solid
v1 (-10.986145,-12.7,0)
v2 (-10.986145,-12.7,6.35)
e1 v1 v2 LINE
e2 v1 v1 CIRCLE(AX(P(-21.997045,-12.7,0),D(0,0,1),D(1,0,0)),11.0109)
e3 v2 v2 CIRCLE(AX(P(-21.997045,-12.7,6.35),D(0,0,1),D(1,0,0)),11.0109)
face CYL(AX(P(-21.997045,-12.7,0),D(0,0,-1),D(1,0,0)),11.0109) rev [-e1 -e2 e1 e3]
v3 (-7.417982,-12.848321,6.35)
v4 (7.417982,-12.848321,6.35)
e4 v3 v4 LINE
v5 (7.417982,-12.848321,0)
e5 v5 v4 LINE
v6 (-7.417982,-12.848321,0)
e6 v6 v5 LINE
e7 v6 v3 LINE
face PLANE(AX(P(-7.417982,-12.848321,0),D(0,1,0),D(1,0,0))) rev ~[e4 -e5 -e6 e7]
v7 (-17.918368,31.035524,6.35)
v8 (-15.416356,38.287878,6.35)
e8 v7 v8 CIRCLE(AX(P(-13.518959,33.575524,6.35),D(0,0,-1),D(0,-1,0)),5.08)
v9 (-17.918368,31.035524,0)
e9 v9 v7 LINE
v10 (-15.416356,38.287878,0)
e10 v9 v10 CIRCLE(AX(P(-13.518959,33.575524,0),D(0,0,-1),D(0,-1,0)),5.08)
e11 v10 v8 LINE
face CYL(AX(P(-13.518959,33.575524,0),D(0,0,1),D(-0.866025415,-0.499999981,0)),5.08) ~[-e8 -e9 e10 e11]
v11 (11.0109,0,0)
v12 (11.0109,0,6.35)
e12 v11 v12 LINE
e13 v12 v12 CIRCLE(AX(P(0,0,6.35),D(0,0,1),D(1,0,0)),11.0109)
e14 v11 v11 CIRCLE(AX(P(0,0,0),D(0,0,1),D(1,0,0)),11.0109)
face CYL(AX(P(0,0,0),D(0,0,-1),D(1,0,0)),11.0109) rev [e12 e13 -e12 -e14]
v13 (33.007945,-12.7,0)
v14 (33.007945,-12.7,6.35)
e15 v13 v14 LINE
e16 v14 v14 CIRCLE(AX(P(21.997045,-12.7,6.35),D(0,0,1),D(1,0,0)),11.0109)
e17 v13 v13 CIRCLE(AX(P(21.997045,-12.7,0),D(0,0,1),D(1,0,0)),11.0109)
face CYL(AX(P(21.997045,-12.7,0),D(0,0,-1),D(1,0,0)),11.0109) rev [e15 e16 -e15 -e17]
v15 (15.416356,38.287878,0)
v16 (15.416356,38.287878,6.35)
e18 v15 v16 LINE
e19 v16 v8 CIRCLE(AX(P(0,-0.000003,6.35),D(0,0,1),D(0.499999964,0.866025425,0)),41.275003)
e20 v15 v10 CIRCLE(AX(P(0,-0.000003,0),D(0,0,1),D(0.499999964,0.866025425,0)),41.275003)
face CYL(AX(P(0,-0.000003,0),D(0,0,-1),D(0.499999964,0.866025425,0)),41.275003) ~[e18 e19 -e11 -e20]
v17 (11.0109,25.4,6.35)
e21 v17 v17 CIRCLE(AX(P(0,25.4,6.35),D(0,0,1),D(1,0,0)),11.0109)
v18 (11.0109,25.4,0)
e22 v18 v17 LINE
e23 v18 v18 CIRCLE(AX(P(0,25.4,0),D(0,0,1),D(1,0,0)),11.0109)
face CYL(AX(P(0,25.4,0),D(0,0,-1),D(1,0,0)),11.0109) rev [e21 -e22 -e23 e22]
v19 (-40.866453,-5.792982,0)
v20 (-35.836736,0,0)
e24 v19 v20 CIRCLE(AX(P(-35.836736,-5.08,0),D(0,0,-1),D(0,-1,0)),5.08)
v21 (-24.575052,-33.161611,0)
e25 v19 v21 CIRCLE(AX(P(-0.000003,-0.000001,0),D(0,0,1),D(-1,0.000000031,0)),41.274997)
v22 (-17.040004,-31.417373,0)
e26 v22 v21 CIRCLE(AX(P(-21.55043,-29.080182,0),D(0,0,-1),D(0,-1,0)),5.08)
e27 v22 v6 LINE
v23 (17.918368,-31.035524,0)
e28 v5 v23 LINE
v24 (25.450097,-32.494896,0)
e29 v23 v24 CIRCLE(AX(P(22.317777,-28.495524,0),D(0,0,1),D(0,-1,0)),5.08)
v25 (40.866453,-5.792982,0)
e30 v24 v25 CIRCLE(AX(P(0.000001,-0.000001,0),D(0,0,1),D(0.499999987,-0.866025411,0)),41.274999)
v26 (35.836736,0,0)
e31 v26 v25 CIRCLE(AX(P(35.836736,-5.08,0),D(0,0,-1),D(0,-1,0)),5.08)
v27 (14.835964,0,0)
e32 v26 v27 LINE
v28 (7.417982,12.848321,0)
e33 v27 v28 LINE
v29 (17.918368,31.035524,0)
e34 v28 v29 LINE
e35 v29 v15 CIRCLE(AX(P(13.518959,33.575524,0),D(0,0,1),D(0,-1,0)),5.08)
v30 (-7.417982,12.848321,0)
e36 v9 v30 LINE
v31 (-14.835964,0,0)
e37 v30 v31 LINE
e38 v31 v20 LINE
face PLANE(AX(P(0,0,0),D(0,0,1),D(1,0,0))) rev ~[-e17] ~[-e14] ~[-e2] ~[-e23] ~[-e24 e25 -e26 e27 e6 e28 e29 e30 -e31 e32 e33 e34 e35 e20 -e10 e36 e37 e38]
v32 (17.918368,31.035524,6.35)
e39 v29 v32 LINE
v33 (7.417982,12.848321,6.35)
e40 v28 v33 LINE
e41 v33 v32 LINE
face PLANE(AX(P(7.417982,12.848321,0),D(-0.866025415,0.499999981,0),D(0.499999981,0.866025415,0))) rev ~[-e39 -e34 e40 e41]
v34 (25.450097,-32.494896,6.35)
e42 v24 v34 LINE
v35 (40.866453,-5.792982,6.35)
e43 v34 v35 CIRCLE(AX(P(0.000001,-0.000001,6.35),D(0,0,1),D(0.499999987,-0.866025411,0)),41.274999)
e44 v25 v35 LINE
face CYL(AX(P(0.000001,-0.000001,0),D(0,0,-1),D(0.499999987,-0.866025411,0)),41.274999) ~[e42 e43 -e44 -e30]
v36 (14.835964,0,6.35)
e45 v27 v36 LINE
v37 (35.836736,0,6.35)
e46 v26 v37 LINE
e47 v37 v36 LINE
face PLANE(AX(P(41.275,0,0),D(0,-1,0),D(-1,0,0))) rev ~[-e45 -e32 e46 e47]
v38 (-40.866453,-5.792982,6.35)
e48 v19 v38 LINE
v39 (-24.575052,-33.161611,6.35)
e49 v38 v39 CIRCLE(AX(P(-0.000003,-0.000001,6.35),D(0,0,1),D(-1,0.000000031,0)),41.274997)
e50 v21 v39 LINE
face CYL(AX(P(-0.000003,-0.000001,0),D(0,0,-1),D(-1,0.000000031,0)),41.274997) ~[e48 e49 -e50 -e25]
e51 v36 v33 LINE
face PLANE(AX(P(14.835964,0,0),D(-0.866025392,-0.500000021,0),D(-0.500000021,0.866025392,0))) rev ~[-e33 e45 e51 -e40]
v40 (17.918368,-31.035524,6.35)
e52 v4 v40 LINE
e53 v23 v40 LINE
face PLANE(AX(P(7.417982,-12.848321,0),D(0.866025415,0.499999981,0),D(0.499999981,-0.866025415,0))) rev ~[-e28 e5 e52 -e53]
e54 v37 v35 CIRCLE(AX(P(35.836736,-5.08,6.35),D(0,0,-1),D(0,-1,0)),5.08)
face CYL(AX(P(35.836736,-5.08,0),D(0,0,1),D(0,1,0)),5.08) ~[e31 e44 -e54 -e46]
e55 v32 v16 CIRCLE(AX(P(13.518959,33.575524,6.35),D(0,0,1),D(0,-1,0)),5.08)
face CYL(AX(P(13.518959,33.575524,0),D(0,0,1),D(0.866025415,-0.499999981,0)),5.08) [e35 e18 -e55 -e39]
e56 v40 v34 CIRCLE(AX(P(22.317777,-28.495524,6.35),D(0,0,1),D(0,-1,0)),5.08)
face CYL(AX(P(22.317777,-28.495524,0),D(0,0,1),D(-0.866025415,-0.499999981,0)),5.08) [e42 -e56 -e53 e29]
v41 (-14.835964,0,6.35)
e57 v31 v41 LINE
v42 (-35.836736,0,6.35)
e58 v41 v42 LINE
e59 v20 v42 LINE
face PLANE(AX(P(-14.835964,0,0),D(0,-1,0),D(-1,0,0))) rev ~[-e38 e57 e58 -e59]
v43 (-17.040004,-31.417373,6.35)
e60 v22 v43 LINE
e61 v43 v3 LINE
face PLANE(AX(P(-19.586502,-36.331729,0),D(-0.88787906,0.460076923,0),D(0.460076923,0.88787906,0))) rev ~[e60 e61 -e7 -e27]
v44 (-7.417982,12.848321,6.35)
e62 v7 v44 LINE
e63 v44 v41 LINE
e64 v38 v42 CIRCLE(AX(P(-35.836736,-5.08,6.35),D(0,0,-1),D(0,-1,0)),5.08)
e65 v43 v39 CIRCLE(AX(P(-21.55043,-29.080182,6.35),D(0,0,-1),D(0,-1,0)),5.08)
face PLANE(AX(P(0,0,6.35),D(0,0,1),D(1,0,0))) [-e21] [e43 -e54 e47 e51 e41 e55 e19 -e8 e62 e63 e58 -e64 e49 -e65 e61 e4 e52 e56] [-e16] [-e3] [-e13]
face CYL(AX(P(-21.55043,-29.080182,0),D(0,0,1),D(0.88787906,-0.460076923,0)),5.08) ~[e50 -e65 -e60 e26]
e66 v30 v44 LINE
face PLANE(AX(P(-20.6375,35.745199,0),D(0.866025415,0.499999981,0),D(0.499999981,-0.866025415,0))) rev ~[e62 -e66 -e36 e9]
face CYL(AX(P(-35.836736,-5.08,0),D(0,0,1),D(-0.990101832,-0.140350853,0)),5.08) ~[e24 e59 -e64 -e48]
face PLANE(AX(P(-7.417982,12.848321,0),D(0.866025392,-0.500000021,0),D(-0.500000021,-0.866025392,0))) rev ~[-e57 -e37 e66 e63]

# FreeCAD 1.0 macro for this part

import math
import FreeCAD as App
import Part
import Sketcher
Q = App.Units.Quantity


def edges_at(feature, points):
    """Names of the edges that pass closest to the given points."""
    edges = feature.Shape.Edges
    near = lambda p: min(range(len(edges)), key=lambda i: edges[i].distToShape(Part.Vertex(*p))[0])
    return sorted({f"Edge{near(p) + 1}" for p in points})

doc = App.newDocument("Part")
params = doc.addObject("Spreadsheet::Sheet", "Params")
for row, (alias, value) in enumerate([
    ("sketch1_diameter", "0.867 in"),
    ("sketch1_radius", "1.625 in"),
    ("pad1_length", "0.25 in"),
    ("fillet_radius", "0.2 in"),
    ("fillet2_radius", "0.2 in"),
    ("fillet3_radius", "0.2 in"),
    ("fillet4_radius", "0.2 in"),
    ("fillet5_radius", "0.2 in"),
    ("fillet6_radius", "0.2 in"),
], start=1):
    params.set(f"A{row}", alias)
    params.set(f"B{row}", "=" + value)
    params.setAlias(f"B{row}", alias)

body = doc.addObject("PartDesign::Body", "Body")

sketch1 = body.newObject("Sketcher::SketchObject", "Sketch")
sketch1.AttachmentSupport = (doc.getObject("XY_Plane"), [""])
sketch1.MapMode = "FlatFace"
sketch1.addGeometry([
    Part.LineSegment(App.Vector(-7.417982, -12.848321, 0), App.Vector(7.417982, -12.848321, 0)),
    Part.LineSegment(App.Vector(7.417982, -12.848321, 0), App.Vector(20.6375, -35.745199, 0)),
    Part.ArcOfCircle(Part.Circle(App.Vector(0.000001, -0.000001, 0), App.Vector(0, 0, 1), 41.274999), math.radians(-60.000001), math.radians(0.000002)),
    Part.LineSegment(App.Vector(41.275, 0, 0), App.Vector(14.835964, 0, 0)),
    Part.LineSegment(App.Vector(14.835964, 0, 0), App.Vector(7.417982, 12.848321, 0)),
    Part.LineSegment(App.Vector(7.417982, 12.848321, 0), App.Vector(20.6375, 35.745199, 0)),
    Part.ArcOfCircle(Part.Circle(App.Vector(0, -0.000003, 0), App.Vector(0, 0, 1), 41.275003), math.radians(60.000002), math.radians(119.999998)),
    Part.LineSegment(App.Vector(-20.6375, 35.745199, 0), App.Vector(-7.417982, 12.848321, 0)),
    Part.LineSegment(App.Vector(-7.417982, 12.848321, 0), App.Vector(-14.835964, 0, 0)),
    Part.LineSegment(App.Vector(-14.835964, 0, 0), App.Vector(-41.275, 0, 0)),
    Part.ArcOfCircle(Part.Circle(App.Vector(-0.000003, -0.000001, 0), App.Vector(0, 0, 1), 41.274997), math.radians(179.999998), math.radians(241.670814)),
    Part.LineSegment(App.Vector(-19.586502, -36.331729, 0), App.Vector(-7.417982, -12.848321, 0)),
    Part.Circle(App.Vector(-21.997045, -12.7, 0), App.Vector(0, 0, 1), 11.0109),
    Part.Circle(App.Vector(21.997045, -12.7, 0), App.Vector(0, 0, 1), 11.0109),
    Part.Circle(App.Vector(0, 0, 0), App.Vector(0, 0, 1), 11.0109),
    Part.Circle(App.Vector(0, 25.4, 0), App.Vector(0, 0, 1), 11.0109),
], False)
sketch1.addConstraint([
    Sketcher.Constraint("Coincident", 0, 2, 1, 1),
    Sketcher.Constraint("Coincident", 1, 2, 2, 1),
    Sketcher.Constraint("Coincident", 2, 2, 3, 1),
    Sketcher.Constraint("Coincident", 3, 2, 4, 1),
    Sketcher.Constraint("Coincident", 4, 2, 5, 1),
    Sketcher.Constraint("Coincident", 5, 2, 6, 1),
    Sketcher.Constraint("Coincident", 6, 2, 7, 1),
    Sketcher.Constraint("Coincident", 7, 2, 8, 1),
    Sketcher.Constraint("Coincident", 8, 2, 9, 1),
    Sketcher.Constraint("Coincident", 9, 2, 10, 1),
    Sketcher.Constraint("Coincident", 10, 2, 11, 1),
    Sketcher.Constraint("Coincident", 11, 2, 0, 1),
    Sketcher.Constraint("Horizontal", 0),
    Sketcher.Constraint("Horizontal", 3),
    Sketcher.Constraint("Horizontal", 9),
    Sketcher.Constraint("Coincident", 2, 3, -1, 1),
    Sketcher.Constraint("Coincident", 6, 3, -1, 1),
    Sketcher.Constraint("Coincident", 10, 3, -1, 1),
    Sketcher.Constraint("Coincident", 14, 3, -1, 1),
    Sketcher.Constraint("Equal", 2, 10),
    Sketcher.Constraint("Equal", 12, 13),
    Sketcher.Constraint("Equal", 13, 14),
    Sketcher.Constraint("Equal", 14, 15),
    Sketcher.Constraint("Symmetric", 1, 2, 6, 2, -1, 1),
    Sketcher.Constraint("Symmetric", 0, 2, 7, 2, -1, 1),
    Sketcher.Constraint("Symmetric", 3, 2, 8, 2, -1, 1),
    Sketcher.Constraint("Symmetric", 4, 2, 11, 2, -1, 1),
    Sketcher.Constraint("Symmetric", 12, 3, 13, 3, -2),
    Sketcher.Constraint("PointOnObject", 15, 3, -2),
    Sketcher.Constraint("PointOnObject", 2, 2, -1),
    Sketcher.Constraint("Parallel", 1, 4),
    Sketcher.Constraint("Parallel", 5, 8),
    Sketcher.Constraint("Horizontal", 5, 2, 6, 2),
    Sketcher.Constraint("Diameter", 12, Q("0.867 in")),
    Sketcher.Constraint("DistanceY", -1, 1, 15, 3, Q("1 in")),
    Sketcher.Constraint("Angle", 1, Q("-60.000001 deg")),
    Sketcher.Constraint("Radius", 2, Q("1.625 in")),
    Sketcher.Constraint("DistanceY", 12, 3, -1, 1, Q("0.5 in")),
    Sketcher.Constraint("DistanceX", -1, 1, 1, 2, Q("0.8125 in")),
    Sketcher.Constraint("DistanceX", 10, 2, -1, 1, 19.586502),
    Sketcher.Constraint("Distance", 11, 26.448881),
    Sketcher.Constraint("DistanceX", 12, 3, 13, 3, 43.99409),
])
sketch1.setExpression("Constraints[33]", "Params.sketch1_diameter")
sketch1.setExpression("Constraints[36]", "Params.sketch1_radius")
pad1 = body.newObject("PartDesign::Pad", "Pad")
pad1.Profile = sketch1
pad1.setExpression("Length", "Params.pad1_length")
doc.recompute()

fillet = body.newObject("PartDesign::Fillet", "Fillet")
fillet.Base = (pad1, edges_at(pad1, [(-19.587, -36.332, 3.175)]))
fillet.setExpression("Radius", "Params.fillet_radius")
doc.recompute()

fillet2 = body.newObject("PartDesign::Fillet", "Fillet001")
fillet2.Base = (fillet, edges_at(fillet, [(20.637, -35.745, 3.175)]))
fillet2.setExpression("Radius", "Params.fillet2_radius")
doc.recompute()

fillet3 = body.newObject("PartDesign::Fillet", "Fillet002")
fillet3.Base = (fillet2, edges_at(fillet2, [(-41.275, 0, 3.175)]))
fillet3.setExpression("Radius", "Params.fillet3_radius")
doc.recompute()

fillet4 = body.newObject("PartDesign::Fillet", "Fillet003")
fillet4.Base = (fillet3, edges_at(fillet3, [(-20.637, 35.745, 3.175)]))
fillet4.setExpression("Radius", "Params.fillet4_radius")
doc.recompute()

fillet5 = body.newObject("PartDesign::Fillet", "Fillet004")
fillet5.Base = (fillet4, edges_at(fillet4, [(41.275, 0, 3.175)]))
fillet5.setExpression("Radius", "Params.fillet5_radius")
doc.recompute()

fillet6 = body.newObject("PartDesign::Fillet", "Fillet005")
fillet6.Base = (fillet5, edges_at(fillet5, [(20.637, 35.745, 3.175)]))
fillet6.setExpression("Radius", "Params.fillet6_radius")

doc.recompute()
